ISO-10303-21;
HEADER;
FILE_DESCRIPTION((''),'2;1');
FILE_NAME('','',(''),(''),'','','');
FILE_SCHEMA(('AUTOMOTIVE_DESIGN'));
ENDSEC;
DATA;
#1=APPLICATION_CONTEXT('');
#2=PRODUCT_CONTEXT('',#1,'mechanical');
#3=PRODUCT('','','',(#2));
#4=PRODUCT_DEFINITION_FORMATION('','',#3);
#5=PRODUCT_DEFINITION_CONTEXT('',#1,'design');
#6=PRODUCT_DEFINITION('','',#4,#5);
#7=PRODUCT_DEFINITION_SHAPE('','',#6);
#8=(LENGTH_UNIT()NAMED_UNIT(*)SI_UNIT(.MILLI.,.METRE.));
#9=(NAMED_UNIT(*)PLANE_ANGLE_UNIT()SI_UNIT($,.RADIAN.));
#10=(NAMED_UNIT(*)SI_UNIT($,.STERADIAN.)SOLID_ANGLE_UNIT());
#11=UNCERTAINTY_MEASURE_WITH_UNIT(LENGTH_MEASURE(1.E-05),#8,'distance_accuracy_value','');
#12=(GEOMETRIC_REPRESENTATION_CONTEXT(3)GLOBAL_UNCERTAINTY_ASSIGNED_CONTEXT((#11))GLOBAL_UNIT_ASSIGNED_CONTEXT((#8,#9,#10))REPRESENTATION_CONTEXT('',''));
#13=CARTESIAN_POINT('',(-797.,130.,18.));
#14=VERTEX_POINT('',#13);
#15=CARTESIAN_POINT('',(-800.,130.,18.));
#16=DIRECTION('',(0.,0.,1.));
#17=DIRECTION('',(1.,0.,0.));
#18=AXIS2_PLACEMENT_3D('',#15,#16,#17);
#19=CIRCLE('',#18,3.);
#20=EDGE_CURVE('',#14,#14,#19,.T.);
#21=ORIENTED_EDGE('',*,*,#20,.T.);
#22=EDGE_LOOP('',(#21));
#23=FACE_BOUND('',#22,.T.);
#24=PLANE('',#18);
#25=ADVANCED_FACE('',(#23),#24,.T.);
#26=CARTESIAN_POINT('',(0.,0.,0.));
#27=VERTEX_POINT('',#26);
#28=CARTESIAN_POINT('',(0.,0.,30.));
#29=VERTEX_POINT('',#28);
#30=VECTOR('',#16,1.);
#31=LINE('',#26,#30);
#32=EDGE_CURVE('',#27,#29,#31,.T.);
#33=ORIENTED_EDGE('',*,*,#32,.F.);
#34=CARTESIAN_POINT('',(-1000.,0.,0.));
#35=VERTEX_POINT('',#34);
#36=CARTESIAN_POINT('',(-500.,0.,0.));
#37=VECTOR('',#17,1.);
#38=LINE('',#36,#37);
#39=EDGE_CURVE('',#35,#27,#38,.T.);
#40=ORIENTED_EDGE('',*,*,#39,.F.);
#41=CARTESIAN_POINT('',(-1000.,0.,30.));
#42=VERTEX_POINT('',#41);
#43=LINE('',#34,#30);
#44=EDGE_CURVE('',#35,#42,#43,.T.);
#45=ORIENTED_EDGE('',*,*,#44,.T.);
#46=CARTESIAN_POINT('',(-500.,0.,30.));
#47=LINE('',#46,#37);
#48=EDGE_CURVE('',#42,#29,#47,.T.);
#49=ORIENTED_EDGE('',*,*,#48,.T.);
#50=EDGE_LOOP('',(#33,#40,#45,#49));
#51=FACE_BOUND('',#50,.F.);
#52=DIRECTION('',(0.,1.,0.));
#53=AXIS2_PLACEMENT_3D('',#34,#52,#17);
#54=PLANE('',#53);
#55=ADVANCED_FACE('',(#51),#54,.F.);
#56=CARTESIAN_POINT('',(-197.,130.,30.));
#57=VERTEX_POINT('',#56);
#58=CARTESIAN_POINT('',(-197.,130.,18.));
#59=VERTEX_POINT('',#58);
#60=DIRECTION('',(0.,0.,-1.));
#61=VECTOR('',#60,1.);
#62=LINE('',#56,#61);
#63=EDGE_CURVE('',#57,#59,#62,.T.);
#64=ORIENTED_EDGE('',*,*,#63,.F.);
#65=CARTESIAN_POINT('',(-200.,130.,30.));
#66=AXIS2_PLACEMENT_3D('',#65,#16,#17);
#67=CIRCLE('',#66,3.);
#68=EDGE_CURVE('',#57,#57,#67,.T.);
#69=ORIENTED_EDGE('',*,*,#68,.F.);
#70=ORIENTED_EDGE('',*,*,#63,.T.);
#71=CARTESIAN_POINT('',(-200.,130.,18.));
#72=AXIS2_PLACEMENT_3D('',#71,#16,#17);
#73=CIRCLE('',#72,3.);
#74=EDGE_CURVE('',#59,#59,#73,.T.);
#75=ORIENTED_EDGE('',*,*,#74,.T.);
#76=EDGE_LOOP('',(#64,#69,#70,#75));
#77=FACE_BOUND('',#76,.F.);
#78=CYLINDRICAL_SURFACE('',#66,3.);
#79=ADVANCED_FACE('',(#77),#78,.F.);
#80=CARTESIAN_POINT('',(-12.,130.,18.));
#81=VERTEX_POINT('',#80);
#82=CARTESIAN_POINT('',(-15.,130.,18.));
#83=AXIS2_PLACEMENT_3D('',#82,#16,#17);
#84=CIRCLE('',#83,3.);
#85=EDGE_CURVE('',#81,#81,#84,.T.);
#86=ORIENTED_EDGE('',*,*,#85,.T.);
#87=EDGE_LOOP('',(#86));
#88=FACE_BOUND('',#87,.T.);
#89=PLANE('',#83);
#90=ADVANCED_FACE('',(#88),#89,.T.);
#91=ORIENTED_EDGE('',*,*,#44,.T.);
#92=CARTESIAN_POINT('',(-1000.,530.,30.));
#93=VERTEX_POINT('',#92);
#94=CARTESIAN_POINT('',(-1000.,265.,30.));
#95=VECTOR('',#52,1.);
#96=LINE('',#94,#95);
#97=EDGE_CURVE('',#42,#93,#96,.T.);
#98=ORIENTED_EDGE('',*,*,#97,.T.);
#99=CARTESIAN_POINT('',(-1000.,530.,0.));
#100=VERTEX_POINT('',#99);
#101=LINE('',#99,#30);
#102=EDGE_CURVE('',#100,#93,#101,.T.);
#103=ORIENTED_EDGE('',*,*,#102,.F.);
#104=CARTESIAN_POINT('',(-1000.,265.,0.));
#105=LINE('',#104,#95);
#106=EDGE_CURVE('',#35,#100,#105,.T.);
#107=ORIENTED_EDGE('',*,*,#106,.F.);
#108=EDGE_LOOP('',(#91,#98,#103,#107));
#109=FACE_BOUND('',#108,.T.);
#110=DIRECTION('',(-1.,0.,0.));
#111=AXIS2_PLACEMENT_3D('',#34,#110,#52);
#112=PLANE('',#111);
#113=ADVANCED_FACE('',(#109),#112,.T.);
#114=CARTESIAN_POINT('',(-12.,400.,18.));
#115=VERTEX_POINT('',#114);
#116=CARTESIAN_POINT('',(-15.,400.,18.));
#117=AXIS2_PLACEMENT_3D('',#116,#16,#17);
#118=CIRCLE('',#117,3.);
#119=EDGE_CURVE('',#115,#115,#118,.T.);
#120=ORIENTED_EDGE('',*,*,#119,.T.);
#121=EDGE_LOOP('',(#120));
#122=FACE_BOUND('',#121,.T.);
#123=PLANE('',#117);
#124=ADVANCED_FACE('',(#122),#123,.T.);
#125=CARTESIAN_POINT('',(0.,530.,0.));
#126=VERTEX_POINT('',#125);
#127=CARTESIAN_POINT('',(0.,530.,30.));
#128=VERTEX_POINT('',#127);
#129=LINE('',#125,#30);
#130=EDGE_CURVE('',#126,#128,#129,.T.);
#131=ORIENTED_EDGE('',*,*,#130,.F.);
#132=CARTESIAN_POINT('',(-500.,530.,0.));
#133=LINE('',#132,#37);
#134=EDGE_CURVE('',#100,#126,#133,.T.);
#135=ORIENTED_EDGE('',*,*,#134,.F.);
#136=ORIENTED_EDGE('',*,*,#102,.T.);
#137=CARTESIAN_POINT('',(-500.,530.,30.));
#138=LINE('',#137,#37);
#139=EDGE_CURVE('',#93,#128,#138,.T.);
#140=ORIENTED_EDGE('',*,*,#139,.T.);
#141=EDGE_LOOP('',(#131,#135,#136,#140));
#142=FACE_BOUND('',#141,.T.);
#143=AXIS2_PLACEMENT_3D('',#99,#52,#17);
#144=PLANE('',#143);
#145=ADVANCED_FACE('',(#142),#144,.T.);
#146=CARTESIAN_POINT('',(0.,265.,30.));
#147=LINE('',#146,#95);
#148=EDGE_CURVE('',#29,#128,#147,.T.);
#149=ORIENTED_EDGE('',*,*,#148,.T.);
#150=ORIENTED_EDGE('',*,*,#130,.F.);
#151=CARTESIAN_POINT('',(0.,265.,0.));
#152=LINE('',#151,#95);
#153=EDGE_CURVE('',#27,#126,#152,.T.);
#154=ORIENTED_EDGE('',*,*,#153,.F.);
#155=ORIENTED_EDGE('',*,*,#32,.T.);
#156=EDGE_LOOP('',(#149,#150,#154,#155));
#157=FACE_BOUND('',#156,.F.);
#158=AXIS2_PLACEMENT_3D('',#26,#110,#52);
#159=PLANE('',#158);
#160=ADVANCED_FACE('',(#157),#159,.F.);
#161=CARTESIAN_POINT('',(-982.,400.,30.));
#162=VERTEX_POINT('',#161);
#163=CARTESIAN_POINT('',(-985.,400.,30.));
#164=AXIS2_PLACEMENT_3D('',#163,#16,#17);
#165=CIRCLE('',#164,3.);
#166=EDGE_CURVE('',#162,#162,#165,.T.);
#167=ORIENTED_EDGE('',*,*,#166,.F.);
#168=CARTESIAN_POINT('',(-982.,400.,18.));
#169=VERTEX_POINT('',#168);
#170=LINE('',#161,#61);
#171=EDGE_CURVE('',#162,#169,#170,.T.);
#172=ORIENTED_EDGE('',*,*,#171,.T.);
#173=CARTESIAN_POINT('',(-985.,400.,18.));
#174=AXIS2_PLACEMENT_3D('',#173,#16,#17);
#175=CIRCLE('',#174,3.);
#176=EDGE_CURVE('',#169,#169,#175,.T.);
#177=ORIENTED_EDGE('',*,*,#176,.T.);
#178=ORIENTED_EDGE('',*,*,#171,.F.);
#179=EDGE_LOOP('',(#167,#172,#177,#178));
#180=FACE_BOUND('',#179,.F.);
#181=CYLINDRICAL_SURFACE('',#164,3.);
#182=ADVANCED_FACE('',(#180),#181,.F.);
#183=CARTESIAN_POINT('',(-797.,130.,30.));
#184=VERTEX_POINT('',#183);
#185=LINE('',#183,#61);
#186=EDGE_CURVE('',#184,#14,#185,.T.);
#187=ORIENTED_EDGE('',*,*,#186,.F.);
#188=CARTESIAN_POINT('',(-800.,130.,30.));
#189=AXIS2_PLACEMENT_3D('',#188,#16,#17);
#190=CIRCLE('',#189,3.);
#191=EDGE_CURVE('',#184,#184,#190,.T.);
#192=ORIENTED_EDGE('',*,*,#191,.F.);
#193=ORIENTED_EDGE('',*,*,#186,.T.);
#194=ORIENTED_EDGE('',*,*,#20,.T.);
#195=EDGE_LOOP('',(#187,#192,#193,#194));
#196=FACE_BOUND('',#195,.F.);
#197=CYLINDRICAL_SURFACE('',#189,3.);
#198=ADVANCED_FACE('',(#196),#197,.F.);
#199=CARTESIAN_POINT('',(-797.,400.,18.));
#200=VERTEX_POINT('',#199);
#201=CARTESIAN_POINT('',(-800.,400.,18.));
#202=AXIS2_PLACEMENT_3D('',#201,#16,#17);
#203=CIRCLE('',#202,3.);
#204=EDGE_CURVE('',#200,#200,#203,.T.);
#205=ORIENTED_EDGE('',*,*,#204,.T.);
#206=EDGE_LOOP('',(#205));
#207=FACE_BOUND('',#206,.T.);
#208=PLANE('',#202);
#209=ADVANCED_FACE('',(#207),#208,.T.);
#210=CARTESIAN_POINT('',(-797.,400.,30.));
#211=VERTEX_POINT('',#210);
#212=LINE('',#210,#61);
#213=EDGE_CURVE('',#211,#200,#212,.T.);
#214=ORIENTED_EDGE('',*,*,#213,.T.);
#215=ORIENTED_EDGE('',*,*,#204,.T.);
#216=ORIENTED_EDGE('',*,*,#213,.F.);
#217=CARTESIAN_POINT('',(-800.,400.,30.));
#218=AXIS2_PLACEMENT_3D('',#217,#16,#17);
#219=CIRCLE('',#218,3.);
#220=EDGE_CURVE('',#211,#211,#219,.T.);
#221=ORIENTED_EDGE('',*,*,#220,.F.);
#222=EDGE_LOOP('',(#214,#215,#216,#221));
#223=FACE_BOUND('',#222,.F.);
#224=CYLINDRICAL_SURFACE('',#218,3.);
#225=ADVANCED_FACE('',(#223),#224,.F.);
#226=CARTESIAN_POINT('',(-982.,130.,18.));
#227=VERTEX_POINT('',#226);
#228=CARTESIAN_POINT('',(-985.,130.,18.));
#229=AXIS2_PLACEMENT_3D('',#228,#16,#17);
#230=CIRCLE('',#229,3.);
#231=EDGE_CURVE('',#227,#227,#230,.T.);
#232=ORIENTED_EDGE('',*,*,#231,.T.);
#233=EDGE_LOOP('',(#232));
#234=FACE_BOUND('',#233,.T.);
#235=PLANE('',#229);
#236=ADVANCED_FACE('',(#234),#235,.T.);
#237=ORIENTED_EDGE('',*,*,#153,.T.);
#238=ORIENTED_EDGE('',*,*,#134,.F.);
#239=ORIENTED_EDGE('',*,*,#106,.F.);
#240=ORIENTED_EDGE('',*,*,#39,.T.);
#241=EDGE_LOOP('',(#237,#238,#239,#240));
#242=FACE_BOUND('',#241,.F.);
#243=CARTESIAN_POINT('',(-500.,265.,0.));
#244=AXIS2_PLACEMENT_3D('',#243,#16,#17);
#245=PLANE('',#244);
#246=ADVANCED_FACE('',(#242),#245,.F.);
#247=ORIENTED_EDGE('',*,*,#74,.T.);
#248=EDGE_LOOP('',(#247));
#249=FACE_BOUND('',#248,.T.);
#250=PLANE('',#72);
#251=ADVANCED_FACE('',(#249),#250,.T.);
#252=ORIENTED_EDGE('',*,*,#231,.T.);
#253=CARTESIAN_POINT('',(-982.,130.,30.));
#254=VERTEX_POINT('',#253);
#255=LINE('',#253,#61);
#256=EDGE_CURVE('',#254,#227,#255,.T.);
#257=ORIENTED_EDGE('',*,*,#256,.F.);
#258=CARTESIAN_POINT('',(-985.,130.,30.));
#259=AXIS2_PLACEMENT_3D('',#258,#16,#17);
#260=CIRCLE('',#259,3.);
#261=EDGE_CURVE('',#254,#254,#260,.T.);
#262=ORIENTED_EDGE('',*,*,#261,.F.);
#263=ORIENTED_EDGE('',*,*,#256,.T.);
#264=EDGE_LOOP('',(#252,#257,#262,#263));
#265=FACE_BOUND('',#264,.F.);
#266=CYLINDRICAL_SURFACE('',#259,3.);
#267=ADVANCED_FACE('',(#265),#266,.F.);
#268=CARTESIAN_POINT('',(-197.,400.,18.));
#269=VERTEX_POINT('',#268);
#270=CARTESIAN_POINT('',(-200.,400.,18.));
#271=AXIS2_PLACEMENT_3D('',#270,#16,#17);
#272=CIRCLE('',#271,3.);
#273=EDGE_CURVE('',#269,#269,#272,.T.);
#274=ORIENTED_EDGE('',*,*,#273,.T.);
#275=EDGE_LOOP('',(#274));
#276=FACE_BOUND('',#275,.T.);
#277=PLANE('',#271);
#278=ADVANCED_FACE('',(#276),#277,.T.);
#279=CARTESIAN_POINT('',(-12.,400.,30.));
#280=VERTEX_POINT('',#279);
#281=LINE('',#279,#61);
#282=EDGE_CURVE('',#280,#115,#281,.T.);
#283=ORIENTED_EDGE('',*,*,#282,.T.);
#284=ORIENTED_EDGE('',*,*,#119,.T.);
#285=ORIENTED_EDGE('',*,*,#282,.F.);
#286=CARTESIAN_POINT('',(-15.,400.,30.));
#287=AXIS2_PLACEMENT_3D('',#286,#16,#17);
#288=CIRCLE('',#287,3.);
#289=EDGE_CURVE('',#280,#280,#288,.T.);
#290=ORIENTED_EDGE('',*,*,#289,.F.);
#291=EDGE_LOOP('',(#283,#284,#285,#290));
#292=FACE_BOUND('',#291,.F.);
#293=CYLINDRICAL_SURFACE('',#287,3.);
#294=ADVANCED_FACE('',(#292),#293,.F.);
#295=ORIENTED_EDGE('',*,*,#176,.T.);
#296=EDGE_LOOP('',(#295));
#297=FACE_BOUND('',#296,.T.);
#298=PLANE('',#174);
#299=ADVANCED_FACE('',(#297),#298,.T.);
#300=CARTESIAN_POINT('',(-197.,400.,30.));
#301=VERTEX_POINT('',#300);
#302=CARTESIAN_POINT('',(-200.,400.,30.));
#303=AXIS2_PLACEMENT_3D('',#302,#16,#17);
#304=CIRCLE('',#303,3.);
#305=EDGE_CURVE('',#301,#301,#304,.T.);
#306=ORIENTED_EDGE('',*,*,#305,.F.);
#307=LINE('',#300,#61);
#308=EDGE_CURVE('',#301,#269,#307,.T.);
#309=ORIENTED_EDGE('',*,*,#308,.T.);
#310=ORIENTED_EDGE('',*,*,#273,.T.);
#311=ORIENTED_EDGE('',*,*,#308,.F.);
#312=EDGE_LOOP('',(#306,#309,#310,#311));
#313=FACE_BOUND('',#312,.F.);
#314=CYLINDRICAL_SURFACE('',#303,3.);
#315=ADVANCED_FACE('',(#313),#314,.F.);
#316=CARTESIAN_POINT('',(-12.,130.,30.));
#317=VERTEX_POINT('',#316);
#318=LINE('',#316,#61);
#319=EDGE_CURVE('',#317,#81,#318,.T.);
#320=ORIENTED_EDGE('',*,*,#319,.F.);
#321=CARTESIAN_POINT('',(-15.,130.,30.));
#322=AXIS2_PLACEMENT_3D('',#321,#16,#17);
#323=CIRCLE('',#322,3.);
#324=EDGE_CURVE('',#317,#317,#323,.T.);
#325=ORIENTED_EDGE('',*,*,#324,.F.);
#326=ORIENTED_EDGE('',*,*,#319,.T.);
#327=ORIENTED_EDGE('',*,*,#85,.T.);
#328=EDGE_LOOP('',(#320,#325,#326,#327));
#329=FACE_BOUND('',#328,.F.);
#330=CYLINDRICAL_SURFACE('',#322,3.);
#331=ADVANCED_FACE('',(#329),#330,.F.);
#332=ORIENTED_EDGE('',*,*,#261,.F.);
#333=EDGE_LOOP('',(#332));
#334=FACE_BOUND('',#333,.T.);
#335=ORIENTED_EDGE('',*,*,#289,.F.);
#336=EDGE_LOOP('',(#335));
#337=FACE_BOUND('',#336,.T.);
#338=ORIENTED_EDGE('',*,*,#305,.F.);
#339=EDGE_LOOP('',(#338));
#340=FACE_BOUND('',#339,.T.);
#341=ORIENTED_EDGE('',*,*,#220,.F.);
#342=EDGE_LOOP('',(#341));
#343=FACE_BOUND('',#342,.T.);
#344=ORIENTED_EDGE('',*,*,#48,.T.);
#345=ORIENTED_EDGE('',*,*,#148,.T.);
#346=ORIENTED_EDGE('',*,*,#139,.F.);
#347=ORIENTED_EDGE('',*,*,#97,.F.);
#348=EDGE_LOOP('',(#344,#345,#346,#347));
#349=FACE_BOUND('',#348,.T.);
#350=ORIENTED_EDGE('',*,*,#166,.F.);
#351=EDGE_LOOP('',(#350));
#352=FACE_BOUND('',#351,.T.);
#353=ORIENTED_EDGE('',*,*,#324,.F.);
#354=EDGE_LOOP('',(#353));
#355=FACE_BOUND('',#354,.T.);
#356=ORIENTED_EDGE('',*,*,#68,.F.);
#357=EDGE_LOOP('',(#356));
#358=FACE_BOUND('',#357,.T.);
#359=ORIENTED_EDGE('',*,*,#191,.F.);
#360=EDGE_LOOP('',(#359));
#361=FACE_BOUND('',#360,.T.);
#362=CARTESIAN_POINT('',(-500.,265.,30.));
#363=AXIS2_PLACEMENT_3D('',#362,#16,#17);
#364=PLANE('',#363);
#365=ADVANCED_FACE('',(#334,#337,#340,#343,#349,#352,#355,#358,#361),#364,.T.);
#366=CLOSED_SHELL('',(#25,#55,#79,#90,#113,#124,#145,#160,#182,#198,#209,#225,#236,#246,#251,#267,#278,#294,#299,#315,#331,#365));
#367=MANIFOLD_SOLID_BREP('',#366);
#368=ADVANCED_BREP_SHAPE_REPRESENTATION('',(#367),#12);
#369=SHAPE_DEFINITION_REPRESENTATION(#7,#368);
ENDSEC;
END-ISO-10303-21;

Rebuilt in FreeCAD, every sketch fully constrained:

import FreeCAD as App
import Part
import Sketcher
from FreeCAD import Vector
Q = App.Units.Quantity

doc = App.newDocument("Part")
params = doc.addObject("Spreadsheet::Sheet", "Params")
for row, (alias, value) in enumerate([
    ("sketch1_width", "1000 mm"),
    ("sketch1_height", "530 mm"),
    ("pad1_length", "30 mm"),
    ("sketch2_diameter", "6 mm"),
    ("pocket1_length", "12 mm"),
    ("sketch3_diameter", "6 mm"),
    ("pocket2_length", "12 mm"),
    ("sketch4_diameter", "6 mm"),
    ("pocket3_length", "12 mm"),
    ("sketch5_diameter", "6 mm"),
    ("pocket4_length", "12 mm"),
    ("sketch6_diameter", "6 mm"),
    ("pocket5_length", "12 mm"),
], start=1):
    params.set(f"A{row}", alias)
    params.set(f"B{row}", "=" + value)
    params.setAlias(f"B{row}", alias)

body = doc.addObject("PartDesign::Body", "Body")

sketch1 = body.newObject("Sketcher::SketchObject", "Sketch")
sketch1.AttachmentSupport = (doc.getObject("XY_Plane"), [""])
sketch1.MapMode = "FlatFace"
sketch1.addGeometry([
    Part.LineSegment(Vector(-1000, 530, 0), Vector(-1000, 0, 0)),
    Part.LineSegment(Vector(-1000, 0, 0), Vector(0, 0, 0)),
    Part.LineSegment(Vector(0, 0, 0), Vector(0, 530, 0)),
    Part.LineSegment(Vector(0, 530, 0), Vector(-1000, 530, 0)),
], False)
sketch1.addConstraint([
    Sketcher.Constraint("Coincident", 0, 2, 1, 1),
    Sketcher.Constraint("Coincident", 1, 2, 2, 1),
    Sketcher.Constraint("Coincident", 2, 2, 3, 1),
    Sketcher.Constraint("Coincident", 3, 2, 0, 1),
    Sketcher.Constraint("Vertical", 0),
    Sketcher.Constraint("Horizontal", 1),
    Sketcher.Constraint("Vertical", 2),
    Sketcher.Constraint("Horizontal", 3),
    Sketcher.Constraint("Coincident", 1, 2, -1, 1),
    Sketcher.Constraint("DistanceX", 1, 1, 1, 2, Q("1000 mm")),
    Sketcher.Constraint("DistanceY", 0, 2, 0, 1, Q("530 mm")),
])
sketch1.setExpression("Constraints[9]", "Params.sketch1_width")
sketch1.setExpression("Constraints[10]", "Params.sketch1_height")
pad1 = body.newObject("PartDesign::Pad", "Pad")
pad1.Profile = sketch1
pad1.setExpression("Length", "Params.pad1_length")

sketch2 = body.newObject("Sketcher::SketchObject", "Sketch001")
sketch2.AttachmentSupport = (doc.getObject("XY_Plane"), [""])
sketch2.MapMode = "FlatFace"
sketch2.AttachmentOffset = App.Placement(Vector(0, 0, 30), App.Rotation())
sketch2.addGeometry(Part.Circle(Vector(-200, 130, 0), Vector(0, 0, 1), 3), False)
sketch2.addConstraint([
    Sketcher.Constraint("Diameter", 0, Q("6 mm")),
    Sketcher.Constraint("DistanceX", 0, 3, -1, 1, Q("200 mm")),
    Sketcher.Constraint("DistanceY", -1, 1, 0, 3, Q("130 mm")),
])
sketch2.setExpression("Constraints[0]", "Params.sketch2_diameter")
pocket1 = body.newObject("PartDesign::Pocket", "Pocket")
pocket1.Profile = sketch2
pocket1.setExpression("Length", "Params.pocket1_length")

sketch3 = body.newObject("Sketcher::SketchObject", "Sketch002")
sketch3.AttachmentSupport = (doc.getObject("XY_Plane"), [""])
sketch3.MapMode = "FlatFace"
sketch3.AttachmentOffset = App.Placement(Vector(0, 0, 30), App.Rotation())
sketch3.addGeometry(Part.Circle(Vector(-800, 130, 0), Vector(0, 0, 1), 3), False)
sketch3.addConstraint([
    Sketcher.Constraint("Diameter", 0, Q("6 mm")),
    Sketcher.Constraint("DistanceX", 0, 3, -1, 1, Q("800 mm")),
    Sketcher.Constraint("DistanceY", -1, 1, 0, 3, Q("130 mm")),
])
sketch3.setExpression("Constraints[0]", "Params.sketch3_diameter")
pocket2 = body.newObject("PartDesign::Pocket", "Pocket001")
pocket2.Profile = sketch3
pocket2.setExpression("Length", "Params.pocket2_length")

sketch4 = body.newObject("Sketcher::SketchObject", "Sketch003")
sketch4.AttachmentSupport = (doc.getObject("XY_Plane"), [""])
sketch4.MapMode = "FlatFace"
sketch4.AttachmentOffset = App.Placement(Vector(0, 0, 30), App.Rotation())
sketch4.addGeometry([
    Part.Circle(Vector(-200, 400, 0), Vector(0, 0, 1), 3),
    Part.Circle(Vector(-800, 400, 0), Vector(0, 0, 1), 3),
], False)
sketch4.addConstraint([
    Sketcher.Constraint("Equal", 0, 1),
    Sketcher.Constraint("Horizontal", 0, 3, 1, 3),
    Sketcher.Constraint("Diameter", 0, Q("6 mm")),
    Sketcher.Constraint("DistanceX", 0, 3, -1, 1, Q("200 mm")),
    Sketcher.Constraint("DistanceY", -1, 1, 0, 3, Q("400 mm")),
    Sketcher.Constraint("DistanceX", 1, 3, -1, 1, Q("800 mm")),
])
sketch4.setExpression("Constraints[2]", "Params.sketch4_diameter")
pocket3 = body.newObject("PartDesign::Pocket", "Pocket002")
pocket3.Profile = sketch4
pocket3.setExpression("Length", "Params.pocket3_length")

sketch5 = body.newObject("Sketcher::SketchObject", "Sketch004")
sketch5.AttachmentSupport = (doc.getObject("XY_Plane"), [""])
sketch5.MapMode = "FlatFace"
sketch5.AttachmentOffset = App.Placement(Vector(0, 0, 30), App.Rotation())
sketch5.addGeometry([
    Part.Circle(Vector(-985, 130, 0), Vector(0, 0, 1), 3),
    Part.Circle(Vector(-985, 400, 0), Vector(0, 0, 1), 3),
], False)
sketch5.addConstraint([
    Sketcher.Constraint("Equal", 0, 1),
    Sketcher.Constraint("Vertical", 0, 3, 1, 3),
    Sketcher.Constraint("Diameter", 0, Q("6 mm")),
    Sketcher.Constraint("DistanceX", 0, 3, -1, 1, Q("985 mm")),
    Sketcher.Constraint("DistanceY", -1, 1, 0, 3, Q("130 mm")),
    Sketcher.Constraint("DistanceY", -1, 1, 1, 3, Q("400 mm")),
])
sketch5.setExpression("Constraints[2]", "Params.sketch5_diameter")
pocket4 = body.newObject("PartDesign::Pocket", "Pocket003")
pocket4.Profile = sketch5
pocket4.setExpression("Length", "Params.pocket4_length")

sketch6 = body.newObject("Sketcher::SketchObject", "Sketch005")
sketch6.AttachmentSupport = (doc.getObject("XY_Plane"), [""])
sketch6.MapMode = "FlatFace"
sketch6.AttachmentOffset = App.Placement(Vector(0, 0, 30), App.Rotation())
sketch6.addGeometry([
    Part.Circle(Vector(-15, 400, 0), Vector(0, 0, 1), 3),
    Part.Circle(Vector(-15, 130, 0), Vector(0, 0, 1), 3),
], False)
sketch6.addConstraint([
    Sketcher.Constraint("Equal", 0, 1),
    Sketcher.Constraint("Vertical", 0, 3, 1, 3),
    Sketcher.Constraint("Diameter", 0, Q("6 mm")),
    Sketcher.Constraint("DistanceX", 0, 3, -1, 1, Q("15 mm")),
    Sketcher.Constraint("DistanceY", -1, 1, 0, 3, Q("400 mm")),
    Sketcher.Constraint("DistanceY", -1, 1, 1, 3, Q("130 mm")),
])
sketch6.setExpression("Constraints[2]", "Params.sketch6_diameter")
pocket5 = body.newObject("PartDesign::Pocket", "Pocket004")
pocket5.Profile = sketch6
pocket5.setExpression("Length", "Params.pocket5_length")

doc.recompute()
